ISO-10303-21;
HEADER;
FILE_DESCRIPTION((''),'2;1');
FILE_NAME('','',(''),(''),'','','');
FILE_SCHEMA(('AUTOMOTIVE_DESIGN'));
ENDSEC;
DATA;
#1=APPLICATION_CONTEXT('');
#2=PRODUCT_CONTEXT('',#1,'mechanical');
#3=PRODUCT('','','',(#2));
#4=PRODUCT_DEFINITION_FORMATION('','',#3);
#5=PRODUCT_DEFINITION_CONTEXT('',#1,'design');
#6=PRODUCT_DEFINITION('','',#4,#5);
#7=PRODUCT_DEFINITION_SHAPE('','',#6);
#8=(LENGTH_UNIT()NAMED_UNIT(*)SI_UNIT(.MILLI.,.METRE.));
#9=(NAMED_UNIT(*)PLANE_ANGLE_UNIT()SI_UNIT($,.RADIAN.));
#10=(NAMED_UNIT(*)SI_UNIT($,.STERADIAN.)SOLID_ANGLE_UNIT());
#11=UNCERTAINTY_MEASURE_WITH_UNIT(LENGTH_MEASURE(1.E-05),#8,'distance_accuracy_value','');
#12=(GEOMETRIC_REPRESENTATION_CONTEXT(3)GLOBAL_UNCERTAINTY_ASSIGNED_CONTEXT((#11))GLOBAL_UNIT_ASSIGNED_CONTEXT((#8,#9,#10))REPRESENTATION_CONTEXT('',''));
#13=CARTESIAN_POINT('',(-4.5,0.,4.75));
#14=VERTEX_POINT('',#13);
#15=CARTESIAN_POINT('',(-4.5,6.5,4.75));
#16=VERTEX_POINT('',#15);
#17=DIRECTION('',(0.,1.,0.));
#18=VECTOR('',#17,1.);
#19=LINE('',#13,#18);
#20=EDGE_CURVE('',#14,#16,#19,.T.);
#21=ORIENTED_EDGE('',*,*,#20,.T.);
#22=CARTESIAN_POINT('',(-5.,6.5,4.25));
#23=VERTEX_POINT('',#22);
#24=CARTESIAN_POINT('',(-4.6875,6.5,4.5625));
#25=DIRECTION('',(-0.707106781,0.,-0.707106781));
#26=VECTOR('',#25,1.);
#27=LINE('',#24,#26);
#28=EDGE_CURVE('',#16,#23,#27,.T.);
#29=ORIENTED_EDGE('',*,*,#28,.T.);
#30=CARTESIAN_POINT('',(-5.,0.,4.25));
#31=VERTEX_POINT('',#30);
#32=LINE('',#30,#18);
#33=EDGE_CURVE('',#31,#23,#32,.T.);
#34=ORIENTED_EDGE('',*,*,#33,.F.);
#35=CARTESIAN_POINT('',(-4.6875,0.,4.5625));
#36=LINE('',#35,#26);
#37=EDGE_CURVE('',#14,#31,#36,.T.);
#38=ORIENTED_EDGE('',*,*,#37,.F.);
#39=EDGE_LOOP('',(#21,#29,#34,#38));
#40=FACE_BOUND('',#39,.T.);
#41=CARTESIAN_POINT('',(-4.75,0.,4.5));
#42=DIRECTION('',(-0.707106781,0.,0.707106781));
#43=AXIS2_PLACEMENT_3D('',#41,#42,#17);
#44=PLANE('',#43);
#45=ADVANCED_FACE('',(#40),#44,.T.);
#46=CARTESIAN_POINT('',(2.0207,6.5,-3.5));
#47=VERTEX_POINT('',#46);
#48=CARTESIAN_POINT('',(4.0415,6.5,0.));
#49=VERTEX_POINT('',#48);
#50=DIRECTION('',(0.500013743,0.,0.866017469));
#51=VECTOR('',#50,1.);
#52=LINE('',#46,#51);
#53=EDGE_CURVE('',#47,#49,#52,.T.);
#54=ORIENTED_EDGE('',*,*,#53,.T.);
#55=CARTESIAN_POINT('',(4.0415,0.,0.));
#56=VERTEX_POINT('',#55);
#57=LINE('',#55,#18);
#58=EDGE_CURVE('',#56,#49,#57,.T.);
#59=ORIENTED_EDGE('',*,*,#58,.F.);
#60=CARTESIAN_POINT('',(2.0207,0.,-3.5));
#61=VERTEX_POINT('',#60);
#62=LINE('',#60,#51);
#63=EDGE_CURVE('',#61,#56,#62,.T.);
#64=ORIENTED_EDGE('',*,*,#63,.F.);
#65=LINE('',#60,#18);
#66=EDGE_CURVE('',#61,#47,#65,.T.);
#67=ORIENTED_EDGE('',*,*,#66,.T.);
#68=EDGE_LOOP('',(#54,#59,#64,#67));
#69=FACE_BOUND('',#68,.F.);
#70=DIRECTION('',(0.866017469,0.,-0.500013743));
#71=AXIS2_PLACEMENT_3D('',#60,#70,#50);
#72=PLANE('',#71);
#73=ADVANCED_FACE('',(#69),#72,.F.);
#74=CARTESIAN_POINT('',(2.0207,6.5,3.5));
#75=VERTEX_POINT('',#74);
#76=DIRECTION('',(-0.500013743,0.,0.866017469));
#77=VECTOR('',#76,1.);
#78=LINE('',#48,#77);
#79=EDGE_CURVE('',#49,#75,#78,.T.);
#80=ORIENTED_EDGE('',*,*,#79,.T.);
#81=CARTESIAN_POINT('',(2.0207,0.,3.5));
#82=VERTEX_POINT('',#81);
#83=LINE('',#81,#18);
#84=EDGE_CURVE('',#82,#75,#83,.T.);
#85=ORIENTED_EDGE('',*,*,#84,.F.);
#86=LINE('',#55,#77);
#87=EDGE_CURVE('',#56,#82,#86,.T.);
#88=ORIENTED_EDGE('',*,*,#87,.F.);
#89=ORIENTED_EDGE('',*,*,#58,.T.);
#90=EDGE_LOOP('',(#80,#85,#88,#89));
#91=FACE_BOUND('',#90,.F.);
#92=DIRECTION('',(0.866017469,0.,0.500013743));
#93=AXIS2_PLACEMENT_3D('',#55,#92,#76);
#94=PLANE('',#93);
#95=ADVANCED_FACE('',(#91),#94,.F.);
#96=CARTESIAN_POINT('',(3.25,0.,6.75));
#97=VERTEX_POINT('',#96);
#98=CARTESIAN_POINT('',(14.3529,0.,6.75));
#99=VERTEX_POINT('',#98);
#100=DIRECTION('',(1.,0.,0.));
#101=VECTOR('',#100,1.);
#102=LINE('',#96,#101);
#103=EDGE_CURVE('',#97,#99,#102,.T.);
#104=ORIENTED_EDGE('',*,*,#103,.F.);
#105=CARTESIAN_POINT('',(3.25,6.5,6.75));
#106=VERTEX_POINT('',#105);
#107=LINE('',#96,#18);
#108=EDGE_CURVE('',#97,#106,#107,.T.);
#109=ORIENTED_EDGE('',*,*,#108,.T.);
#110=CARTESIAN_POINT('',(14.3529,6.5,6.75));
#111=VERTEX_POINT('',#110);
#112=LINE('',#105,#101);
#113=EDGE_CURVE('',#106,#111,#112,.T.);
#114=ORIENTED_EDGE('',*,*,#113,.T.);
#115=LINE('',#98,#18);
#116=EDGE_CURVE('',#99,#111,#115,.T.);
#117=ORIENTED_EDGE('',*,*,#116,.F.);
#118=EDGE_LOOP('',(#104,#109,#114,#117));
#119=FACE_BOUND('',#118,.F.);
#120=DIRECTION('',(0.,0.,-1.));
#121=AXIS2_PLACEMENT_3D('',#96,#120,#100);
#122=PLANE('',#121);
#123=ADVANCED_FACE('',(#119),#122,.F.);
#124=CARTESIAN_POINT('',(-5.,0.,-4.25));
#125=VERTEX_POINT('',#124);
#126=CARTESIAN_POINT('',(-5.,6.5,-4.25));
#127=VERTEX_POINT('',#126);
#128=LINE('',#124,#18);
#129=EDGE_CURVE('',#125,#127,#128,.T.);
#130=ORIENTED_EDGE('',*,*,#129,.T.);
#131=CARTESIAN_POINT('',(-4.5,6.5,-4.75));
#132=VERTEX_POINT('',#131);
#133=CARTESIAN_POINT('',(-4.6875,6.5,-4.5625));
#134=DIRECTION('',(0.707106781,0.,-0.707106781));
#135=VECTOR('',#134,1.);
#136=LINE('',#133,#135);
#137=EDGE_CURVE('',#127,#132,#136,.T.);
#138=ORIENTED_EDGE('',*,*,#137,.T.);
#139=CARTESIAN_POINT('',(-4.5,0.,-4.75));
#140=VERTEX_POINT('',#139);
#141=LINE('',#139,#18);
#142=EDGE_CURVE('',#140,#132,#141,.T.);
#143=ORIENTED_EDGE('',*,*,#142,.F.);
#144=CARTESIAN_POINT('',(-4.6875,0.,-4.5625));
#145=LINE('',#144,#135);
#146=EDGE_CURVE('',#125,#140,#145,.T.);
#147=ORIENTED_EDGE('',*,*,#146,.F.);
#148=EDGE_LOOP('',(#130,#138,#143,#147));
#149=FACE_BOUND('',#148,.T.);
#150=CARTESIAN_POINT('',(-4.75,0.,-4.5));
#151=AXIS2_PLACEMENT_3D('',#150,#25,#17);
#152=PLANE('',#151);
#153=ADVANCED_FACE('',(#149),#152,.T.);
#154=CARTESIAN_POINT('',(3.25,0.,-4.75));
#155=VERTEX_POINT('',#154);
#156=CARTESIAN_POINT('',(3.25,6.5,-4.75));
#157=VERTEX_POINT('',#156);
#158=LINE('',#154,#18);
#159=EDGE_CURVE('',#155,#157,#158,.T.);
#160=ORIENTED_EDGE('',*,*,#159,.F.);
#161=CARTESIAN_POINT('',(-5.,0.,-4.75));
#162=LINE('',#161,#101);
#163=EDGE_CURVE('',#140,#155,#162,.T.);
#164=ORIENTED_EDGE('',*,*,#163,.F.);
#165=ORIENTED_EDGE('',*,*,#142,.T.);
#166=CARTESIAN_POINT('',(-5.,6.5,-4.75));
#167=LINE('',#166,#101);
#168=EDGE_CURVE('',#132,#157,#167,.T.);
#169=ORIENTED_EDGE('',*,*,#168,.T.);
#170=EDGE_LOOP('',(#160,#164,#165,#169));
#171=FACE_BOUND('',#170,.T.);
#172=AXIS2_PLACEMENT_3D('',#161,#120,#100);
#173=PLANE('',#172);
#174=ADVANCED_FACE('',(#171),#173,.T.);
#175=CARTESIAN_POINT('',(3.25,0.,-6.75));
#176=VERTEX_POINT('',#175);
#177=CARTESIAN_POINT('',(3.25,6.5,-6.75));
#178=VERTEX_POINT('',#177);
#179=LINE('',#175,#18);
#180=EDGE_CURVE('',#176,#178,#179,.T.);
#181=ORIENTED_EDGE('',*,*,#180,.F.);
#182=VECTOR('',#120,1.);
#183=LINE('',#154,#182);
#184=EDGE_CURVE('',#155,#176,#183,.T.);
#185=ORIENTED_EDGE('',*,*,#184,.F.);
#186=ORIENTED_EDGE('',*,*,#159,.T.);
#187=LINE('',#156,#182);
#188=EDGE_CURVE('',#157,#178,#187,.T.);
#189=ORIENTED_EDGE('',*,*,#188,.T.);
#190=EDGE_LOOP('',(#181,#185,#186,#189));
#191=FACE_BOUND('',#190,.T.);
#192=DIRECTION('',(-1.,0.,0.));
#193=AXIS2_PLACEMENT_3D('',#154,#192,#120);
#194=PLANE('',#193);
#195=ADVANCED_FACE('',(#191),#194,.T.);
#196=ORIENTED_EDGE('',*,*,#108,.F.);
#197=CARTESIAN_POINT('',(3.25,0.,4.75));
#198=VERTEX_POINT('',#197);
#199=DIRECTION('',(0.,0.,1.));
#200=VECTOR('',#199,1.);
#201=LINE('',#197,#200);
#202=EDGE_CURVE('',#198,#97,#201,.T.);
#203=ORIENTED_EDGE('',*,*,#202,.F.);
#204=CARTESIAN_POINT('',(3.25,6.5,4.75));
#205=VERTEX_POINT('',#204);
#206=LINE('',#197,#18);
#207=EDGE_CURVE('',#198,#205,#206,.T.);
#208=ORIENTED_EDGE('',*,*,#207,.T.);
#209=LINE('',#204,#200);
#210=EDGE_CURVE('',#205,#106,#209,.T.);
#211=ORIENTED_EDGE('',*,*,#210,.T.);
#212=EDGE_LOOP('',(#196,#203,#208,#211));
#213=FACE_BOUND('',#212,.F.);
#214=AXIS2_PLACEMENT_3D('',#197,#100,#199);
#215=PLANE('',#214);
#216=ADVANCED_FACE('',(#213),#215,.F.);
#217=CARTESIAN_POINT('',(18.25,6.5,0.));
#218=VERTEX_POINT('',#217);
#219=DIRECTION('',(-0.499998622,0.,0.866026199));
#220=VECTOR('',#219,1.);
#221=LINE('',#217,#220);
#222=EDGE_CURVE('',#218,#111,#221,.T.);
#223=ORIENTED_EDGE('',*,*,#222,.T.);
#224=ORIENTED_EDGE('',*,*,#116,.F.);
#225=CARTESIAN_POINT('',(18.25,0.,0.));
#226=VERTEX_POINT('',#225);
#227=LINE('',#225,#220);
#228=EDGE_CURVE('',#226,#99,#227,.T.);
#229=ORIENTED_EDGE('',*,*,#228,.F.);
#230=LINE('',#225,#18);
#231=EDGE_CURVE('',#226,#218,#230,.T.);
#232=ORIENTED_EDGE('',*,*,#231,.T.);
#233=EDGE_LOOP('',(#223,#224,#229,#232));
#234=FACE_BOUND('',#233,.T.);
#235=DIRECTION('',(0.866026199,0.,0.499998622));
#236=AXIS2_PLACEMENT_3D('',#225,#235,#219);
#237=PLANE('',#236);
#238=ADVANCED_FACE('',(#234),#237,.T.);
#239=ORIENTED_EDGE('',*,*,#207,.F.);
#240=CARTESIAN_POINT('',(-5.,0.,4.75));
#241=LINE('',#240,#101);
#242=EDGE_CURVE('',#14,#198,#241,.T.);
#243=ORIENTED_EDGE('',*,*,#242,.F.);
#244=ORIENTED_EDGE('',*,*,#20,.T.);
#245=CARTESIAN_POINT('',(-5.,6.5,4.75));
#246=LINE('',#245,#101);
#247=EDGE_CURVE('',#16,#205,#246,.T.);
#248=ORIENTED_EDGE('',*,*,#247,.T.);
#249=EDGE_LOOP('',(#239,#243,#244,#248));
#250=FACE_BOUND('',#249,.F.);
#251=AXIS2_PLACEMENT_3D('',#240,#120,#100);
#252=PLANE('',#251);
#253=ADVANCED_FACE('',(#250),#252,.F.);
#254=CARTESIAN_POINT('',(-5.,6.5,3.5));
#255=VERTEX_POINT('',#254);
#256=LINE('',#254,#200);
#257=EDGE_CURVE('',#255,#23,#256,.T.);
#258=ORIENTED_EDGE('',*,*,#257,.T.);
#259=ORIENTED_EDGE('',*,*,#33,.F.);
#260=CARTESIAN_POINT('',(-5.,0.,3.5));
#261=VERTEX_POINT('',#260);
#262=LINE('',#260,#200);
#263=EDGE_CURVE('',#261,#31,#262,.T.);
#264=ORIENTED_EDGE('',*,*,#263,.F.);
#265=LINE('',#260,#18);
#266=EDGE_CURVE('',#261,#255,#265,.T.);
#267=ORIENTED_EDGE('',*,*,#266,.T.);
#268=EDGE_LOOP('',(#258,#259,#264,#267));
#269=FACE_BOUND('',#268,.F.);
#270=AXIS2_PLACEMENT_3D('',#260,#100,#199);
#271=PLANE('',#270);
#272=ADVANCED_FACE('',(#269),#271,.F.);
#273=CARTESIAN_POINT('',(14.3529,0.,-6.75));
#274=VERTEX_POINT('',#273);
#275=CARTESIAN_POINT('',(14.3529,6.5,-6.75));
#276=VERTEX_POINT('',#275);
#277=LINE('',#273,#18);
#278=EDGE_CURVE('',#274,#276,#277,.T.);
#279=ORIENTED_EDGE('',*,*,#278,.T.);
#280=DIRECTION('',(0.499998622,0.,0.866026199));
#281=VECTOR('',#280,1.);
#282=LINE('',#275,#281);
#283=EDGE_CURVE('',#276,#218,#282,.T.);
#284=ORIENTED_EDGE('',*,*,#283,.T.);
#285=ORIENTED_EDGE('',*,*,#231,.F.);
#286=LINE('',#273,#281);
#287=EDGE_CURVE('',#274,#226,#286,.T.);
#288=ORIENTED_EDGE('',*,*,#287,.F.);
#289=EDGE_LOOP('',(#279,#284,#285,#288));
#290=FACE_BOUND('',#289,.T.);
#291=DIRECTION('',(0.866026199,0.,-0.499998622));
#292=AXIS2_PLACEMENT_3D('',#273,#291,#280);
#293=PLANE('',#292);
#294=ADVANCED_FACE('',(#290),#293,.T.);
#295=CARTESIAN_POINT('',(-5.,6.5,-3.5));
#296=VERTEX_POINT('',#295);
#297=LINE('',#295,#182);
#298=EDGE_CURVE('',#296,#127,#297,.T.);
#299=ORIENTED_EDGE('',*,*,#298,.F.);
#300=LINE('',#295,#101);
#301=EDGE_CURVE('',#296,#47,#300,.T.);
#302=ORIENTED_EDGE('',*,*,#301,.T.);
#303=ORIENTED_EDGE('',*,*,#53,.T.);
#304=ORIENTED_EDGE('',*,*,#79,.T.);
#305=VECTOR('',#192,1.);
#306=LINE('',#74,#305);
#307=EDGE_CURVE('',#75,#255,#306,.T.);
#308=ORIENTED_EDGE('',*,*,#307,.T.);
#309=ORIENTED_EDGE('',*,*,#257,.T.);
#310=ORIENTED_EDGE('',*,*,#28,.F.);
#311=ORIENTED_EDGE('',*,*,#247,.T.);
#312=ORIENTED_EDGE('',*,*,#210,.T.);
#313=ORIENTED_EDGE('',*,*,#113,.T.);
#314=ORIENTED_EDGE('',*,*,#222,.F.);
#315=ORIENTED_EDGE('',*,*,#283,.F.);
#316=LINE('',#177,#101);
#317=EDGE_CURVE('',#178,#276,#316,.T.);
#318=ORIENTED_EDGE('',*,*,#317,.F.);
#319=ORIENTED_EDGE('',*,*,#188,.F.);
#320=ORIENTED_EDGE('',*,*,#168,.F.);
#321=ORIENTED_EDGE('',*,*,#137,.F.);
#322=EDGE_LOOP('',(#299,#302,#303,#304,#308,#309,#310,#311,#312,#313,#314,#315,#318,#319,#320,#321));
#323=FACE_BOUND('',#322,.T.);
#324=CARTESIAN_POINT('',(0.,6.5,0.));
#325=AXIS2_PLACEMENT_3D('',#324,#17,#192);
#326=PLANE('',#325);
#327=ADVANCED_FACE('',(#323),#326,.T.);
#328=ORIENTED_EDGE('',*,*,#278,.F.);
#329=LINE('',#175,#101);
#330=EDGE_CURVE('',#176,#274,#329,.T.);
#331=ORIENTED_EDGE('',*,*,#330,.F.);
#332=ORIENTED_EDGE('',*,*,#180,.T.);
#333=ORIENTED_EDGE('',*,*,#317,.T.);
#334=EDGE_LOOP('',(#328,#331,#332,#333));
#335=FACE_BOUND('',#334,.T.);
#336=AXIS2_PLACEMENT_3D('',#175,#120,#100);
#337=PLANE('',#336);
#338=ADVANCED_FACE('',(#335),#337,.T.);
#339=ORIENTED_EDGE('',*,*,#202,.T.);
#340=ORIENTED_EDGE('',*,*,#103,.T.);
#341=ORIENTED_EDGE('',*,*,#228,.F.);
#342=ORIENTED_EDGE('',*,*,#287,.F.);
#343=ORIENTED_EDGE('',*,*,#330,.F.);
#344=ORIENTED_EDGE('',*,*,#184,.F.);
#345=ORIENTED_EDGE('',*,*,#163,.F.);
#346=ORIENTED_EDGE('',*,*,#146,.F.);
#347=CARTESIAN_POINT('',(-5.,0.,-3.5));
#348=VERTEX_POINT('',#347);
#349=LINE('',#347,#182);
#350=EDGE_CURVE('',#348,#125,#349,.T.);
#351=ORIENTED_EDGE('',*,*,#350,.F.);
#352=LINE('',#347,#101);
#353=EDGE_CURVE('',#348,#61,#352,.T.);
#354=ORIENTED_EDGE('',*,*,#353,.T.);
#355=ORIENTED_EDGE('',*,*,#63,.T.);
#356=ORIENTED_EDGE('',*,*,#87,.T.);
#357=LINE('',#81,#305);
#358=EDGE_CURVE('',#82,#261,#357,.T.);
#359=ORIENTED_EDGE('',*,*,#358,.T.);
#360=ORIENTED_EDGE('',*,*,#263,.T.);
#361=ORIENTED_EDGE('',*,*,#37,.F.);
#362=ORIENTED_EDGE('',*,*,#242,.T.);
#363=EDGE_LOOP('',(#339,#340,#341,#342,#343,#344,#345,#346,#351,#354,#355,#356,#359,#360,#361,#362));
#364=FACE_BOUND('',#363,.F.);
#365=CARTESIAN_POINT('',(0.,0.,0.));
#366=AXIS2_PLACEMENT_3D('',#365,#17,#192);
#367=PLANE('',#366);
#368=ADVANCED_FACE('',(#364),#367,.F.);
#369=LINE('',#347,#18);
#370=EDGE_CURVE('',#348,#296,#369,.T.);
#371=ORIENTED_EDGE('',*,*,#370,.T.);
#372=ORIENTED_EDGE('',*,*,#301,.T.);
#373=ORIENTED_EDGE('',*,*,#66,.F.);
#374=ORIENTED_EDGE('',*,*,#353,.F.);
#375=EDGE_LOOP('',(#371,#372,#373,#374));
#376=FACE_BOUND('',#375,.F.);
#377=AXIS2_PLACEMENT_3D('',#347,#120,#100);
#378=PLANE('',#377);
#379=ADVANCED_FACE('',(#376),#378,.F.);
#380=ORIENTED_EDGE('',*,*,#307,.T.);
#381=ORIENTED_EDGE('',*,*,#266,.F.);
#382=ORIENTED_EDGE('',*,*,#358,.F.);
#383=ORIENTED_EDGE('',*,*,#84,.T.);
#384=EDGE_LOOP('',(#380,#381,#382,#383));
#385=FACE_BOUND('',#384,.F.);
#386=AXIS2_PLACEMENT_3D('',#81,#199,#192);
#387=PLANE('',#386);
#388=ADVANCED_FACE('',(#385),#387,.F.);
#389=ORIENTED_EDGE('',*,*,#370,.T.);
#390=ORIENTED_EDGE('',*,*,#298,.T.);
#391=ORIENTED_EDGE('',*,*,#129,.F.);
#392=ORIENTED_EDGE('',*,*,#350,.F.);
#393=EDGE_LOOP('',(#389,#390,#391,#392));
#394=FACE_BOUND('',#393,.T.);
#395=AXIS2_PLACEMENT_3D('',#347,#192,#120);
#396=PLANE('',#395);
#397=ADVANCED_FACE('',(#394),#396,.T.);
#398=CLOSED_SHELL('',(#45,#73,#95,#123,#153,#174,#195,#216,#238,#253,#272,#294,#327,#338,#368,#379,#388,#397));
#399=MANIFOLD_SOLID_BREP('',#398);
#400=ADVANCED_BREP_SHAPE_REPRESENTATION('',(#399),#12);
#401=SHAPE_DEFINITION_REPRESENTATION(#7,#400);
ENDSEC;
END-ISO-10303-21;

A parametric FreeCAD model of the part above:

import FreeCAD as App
import Part
import Sketcher

V = App.Vector
Q = App.Units.Quantity


def edges_at(feature, points):
    """Names of the edges that pass closest to the given points."""
    edges = feature.Shape.Edges
    near = lambda p: min(range(len(edges)), key=lambda i: edges[i].distToShape(Part.Vertex(*p))[0])
    return sorted({f"Edge{near(p) + 1}" for p in points})


def add_polygon(sketch, points):
    """Adds a closed chain of lines whose ends are joined by coincident constraints."""
    first, n = sketch.GeometryCount, len(points)
    for a, b in zip(points, points[1:] + points[:1]):
        sketch.addGeometry(Part.LineSegment(App.Vector(*a, 0), App.Vector(*b, 0)), False)
    for i in range(n):
        sketch.addConstraint(Sketcher.Constraint("Coincident", first + i, 2, first + (i + 1) % n, 1))

doc = App.newDocument("Part")
body = doc.addObject("PartDesign::Body", "Body")

sketch1 = body.newObject("Sketcher::SketchObject", "Sketch")
sketch1.AttachmentSupport = (doc.getObject("XZ_Plane"), [""])
sketch1.MapMode = "FlatFace"
add_polygon(sketch1, [(4.0415, 0), (2.0207, 3.5), (-5, 3.5), (-5, 4.75), (3.25, 4.75), (3.25, 6.75), (14.3529, 6.75), (18.25, 0), (14.3529, -6.75), (3.25, -6.75), (3.25, -4.75), (-5, -4.75), (-5, -3.5), (2.0207, -3.5)])
sketch1.addConstraint([
    Sketcher.Constraint("Horizontal", 1),
    Sketcher.Constraint("Vertical", 2),
    Sketcher.Constraint("Horizontal", 3),
    Sketcher.Constraint("Vertical", 4),
    Sketcher.Constraint("Horizontal", 5),
    Sketcher.Constraint("Horizontal", 8),
    Sketcher.Constraint("Vertical", 9),
    Sketcher.Constraint("Horizontal", 10),
    Sketcher.Constraint("Vertical", 11),
    Sketcher.Constraint("Horizontal", 12),
    Sketcher.Constraint("Symmetric", 5, 2, 7, 2, -1),
    Sketcher.Constraint("Symmetric", 3, 2, 9, 2, -1),
    Sketcher.Constraint("Symmetric", 1, 2, 11, 2, -1),
    Sketcher.Constraint("PointOnObject", 6, 2, -1),
    Sketcher.Constraint("PointOnObject", 13, 2, -1),
    Sketcher.Constraint("Parallel", 0, 6),
    Sketcher.Constraint("Parallel", 7, 13),
    Sketcher.Constraint("DistanceY", 4, 1, 4, 2, Q("2 mm")),
    Sketcher.Constraint("DistanceX", 1, 2, -1, 1, Q("5 mm")),
    Sketcher.Constraint("DistanceX", 3, 2, 6, 2, Q("15 mm")),
    Sketcher.Constraint("DistanceY", 11, 2, 1, 2, Q("7 mm")),
    Sketcher.Constraint("DistanceY", 9, 2, 3, 2, Q("9.5 mm")),
    Sketcher.Constraint("DistanceX", -1, 1, 3, 2, Q("3.25 mm")),
    Sketcher.Constraint("Angle", 0, Q("120.001 deg")),
    Sketcher.Constraint("DistanceX", 1, 2, 1, 1, Q("7.0207 mm")),
])
pad1 = body.newObject("PartDesign::Pad", "Pad")
pad1.Profile = sketch1
pad1.Length = 6.5
pad1.Reversed = True
doc.recompute()

chamfer = body.newObject("PartDesign::Chamfer", "Chamfer")
chamfer.Base = (pad1, edges_at(pad1, [(-5, 3.25, -4.75), (-5, 3.25, 4.75)]))
chamfer.Size = 0.5

doc.recompute()
